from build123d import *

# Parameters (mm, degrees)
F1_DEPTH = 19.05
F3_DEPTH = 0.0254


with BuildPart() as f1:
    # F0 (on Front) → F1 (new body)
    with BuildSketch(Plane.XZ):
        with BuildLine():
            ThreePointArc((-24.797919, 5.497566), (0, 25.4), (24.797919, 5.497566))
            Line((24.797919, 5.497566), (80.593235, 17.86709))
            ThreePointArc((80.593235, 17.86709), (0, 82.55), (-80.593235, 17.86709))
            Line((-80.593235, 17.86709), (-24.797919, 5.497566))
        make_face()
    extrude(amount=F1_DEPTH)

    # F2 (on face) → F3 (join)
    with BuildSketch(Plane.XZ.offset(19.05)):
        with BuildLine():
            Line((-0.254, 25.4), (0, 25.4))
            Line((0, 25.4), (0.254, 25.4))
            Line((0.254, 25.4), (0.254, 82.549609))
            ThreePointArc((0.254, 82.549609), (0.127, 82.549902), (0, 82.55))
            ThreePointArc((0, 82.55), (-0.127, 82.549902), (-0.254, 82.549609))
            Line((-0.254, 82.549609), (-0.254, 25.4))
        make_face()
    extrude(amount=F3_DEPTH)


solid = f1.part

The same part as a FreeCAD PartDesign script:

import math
import FreeCAD as App
import Part
import Sketcher
from FreeCAD import Vector
Q = App.Units.Quantity

doc = App.newDocument("Part")
params = doc.addObject("Spreadsheet::Sheet", "Params")
for row, (alias, value) in enumerate([
    ("sketch1_radius", "1 in"),
    ("sketch1_radius2", "3.25 in"),
    ("pad1_length", "0.75 in"),
    ("sketch2_width", "0.02 in"),
    ("pad2_length", "0.001 in"),
], start=1):
    params.set(f"A{row}", alias)
    params.set(f"B{row}", "=" + value)
    params.setAlias(f"B{row}", alias)

body = doc.addObject("PartDesign::Body", "Body")

# Sketch on XZ plane
sketch1 = body.newObject("Sketcher::SketchObject", "Sketch")
sketch1.AttachmentSupport = (doc.getObject("XZ_Plane"), [""])
sketch1.MapMode = "FlatFace"
sketch1.addGeometry([
    Part.ArcOfCircle(Part.Circle(Vector(0, 0, 0), Vector(0, 0, 1), 25), math.radians(13), math.radians(167)),
    Part.LineSegment(Vector(25, 5, 0), Vector(81, 18, 0)),
    Part.ArcOfCircle(Part.Circle(Vector(0, 0, 0), Vector(0, 0, 1), 83), math.radians(12), math.radians(168)),
    Part.LineSegment(Vector(-81, 18, 0), Vector(-25, 5, 0)),
], False)
sketch1.addConstraint([
    Sketcher.Constraint("Coincident", 0, 1, 1, 1),
    Sketcher.Constraint("Coincident", 1, 2, 2, 1),
    Sketcher.Constraint("Coincident", 2, 2, 3, 1),
    Sketcher.Constraint("Coincident", 3, 2, 0, 2),
    Sketcher.Constraint("Coincident", 0, 3, -1, 1),
    Sketcher.Constraint("Coincident", 2, 3, -1, 1),
    Sketcher.Constraint("Horizontal", 1, 2, 2, 2),
    Sketcher.Constraint("Horizontal", 0, 1, 3, 2),
    Sketcher.Constraint("Radius", 0, Q("1 in")),
    Sketcher.Constraint("Radius", 2, Q("3.25 in")),
    Sketcher.Constraint("Angle", 1, Q("12.5 deg")),
    Sketcher.Constraint("DistanceX", -1, 1, 0, 1, Q("24.797919 mm")),
])
sketch1.setExpression("Constraints[8]", "Params.sketch1_radius")
sketch1.setExpression("Constraints[9]", "Params.sketch1_radius2")
pad1 = body.newObject("PartDesign::Pad", "Pad")
pad1.Profile = sketch1
pad1.setExpression("Length", "Params.pad1_length")

# Sketch on XZ plane
sketch2 = body.newObject("Sketcher::SketchObject", "Sketch001")
sketch2.AttachmentSupport = (doc.getObject("XZ_Plane"), [""])
sketch2.MapMode = "FlatFace"
sketch2.AttachmentOffset = App.Placement(Vector(0, 0, 0.75 * 25.4), App.Rotation())
sketch2.addGeometry([
    Part.LineSegment(Vector(-0.25, 25.4, 0), Vector(0.25, 25.4, 0)),  # 0
    Part.LineSegment(Vector(0.25, 25.4, 0), Vector(0.25, 82.55, 0)),  # 1
    Part.ArcOfCircle(Part.Circle(Vector(0, -0.16, 0), Vector(0, 0, 1), 82.71), math.radians(89.82), math.radians(90)),  # 2
    Part.ArcOfCircle(Part.Circle(Vector(0, -0.16, 0), Vector(0, 0, 1), 82.71), math.radians(90), math.radians(90.18)),  # 3
    Part.LineSegment(Vector(-0.25, 82.55, 0), Vector(-0.25, 25.4, 0)),  # 4
], False)
sketch2.addConstraint([
    Sketcher.Constraint("Coincident", 0, 2, 1, 1),
    Sketcher.Constraint("Coincident", 1, 2, 2, 1),
    Sketcher.Constraint("Coincident", 2, 2, 3, 1),
    Sketcher.Constraint("Coincident", 3, 2, 4, 1),
    Sketcher.Constraint("Coincident", 4, 2, 0, 1),
    Sketcher.Constraint("Horizontal", 0),
    Sketcher.Constraint("Vertical", 1),
    Sketcher.Constraint("Vertical", 4),
    Sketcher.Constraint("Equal", 2, 3),
    Sketcher.Constraint("Symmetric", 1, 2, 3, 2, -2),
    Sketcher.Constraint("PointOnObject", 2, 2, -2),
    Sketcher.Constraint("DistanceY", -1, 1, 0, 2, Q("1 in")),
    Sketcher.Constraint("DistanceX", 0, 1, 0, 2, Q("0.02 in")),
    Sketcher.Constraint("DistanceY", -1, 1, 2, 2, Q("3.25 in")),
    Sketcher.Constraint("Radius", 2, Q("82.713163 mm")),
    Sketcher.Constraint("DistanceY", -1, 1, 1, 2, Q("82.549609 mm")),
])
sketch2.setExpression("Constraints[12]", "Params.sketch2_width")
pad2 = body.newObject("PartDesign::Pad", "Pad001")
pad2.Profile = sketch2
pad2.setExpression("Length", "Params.pad2_length")

doc.recompute()
